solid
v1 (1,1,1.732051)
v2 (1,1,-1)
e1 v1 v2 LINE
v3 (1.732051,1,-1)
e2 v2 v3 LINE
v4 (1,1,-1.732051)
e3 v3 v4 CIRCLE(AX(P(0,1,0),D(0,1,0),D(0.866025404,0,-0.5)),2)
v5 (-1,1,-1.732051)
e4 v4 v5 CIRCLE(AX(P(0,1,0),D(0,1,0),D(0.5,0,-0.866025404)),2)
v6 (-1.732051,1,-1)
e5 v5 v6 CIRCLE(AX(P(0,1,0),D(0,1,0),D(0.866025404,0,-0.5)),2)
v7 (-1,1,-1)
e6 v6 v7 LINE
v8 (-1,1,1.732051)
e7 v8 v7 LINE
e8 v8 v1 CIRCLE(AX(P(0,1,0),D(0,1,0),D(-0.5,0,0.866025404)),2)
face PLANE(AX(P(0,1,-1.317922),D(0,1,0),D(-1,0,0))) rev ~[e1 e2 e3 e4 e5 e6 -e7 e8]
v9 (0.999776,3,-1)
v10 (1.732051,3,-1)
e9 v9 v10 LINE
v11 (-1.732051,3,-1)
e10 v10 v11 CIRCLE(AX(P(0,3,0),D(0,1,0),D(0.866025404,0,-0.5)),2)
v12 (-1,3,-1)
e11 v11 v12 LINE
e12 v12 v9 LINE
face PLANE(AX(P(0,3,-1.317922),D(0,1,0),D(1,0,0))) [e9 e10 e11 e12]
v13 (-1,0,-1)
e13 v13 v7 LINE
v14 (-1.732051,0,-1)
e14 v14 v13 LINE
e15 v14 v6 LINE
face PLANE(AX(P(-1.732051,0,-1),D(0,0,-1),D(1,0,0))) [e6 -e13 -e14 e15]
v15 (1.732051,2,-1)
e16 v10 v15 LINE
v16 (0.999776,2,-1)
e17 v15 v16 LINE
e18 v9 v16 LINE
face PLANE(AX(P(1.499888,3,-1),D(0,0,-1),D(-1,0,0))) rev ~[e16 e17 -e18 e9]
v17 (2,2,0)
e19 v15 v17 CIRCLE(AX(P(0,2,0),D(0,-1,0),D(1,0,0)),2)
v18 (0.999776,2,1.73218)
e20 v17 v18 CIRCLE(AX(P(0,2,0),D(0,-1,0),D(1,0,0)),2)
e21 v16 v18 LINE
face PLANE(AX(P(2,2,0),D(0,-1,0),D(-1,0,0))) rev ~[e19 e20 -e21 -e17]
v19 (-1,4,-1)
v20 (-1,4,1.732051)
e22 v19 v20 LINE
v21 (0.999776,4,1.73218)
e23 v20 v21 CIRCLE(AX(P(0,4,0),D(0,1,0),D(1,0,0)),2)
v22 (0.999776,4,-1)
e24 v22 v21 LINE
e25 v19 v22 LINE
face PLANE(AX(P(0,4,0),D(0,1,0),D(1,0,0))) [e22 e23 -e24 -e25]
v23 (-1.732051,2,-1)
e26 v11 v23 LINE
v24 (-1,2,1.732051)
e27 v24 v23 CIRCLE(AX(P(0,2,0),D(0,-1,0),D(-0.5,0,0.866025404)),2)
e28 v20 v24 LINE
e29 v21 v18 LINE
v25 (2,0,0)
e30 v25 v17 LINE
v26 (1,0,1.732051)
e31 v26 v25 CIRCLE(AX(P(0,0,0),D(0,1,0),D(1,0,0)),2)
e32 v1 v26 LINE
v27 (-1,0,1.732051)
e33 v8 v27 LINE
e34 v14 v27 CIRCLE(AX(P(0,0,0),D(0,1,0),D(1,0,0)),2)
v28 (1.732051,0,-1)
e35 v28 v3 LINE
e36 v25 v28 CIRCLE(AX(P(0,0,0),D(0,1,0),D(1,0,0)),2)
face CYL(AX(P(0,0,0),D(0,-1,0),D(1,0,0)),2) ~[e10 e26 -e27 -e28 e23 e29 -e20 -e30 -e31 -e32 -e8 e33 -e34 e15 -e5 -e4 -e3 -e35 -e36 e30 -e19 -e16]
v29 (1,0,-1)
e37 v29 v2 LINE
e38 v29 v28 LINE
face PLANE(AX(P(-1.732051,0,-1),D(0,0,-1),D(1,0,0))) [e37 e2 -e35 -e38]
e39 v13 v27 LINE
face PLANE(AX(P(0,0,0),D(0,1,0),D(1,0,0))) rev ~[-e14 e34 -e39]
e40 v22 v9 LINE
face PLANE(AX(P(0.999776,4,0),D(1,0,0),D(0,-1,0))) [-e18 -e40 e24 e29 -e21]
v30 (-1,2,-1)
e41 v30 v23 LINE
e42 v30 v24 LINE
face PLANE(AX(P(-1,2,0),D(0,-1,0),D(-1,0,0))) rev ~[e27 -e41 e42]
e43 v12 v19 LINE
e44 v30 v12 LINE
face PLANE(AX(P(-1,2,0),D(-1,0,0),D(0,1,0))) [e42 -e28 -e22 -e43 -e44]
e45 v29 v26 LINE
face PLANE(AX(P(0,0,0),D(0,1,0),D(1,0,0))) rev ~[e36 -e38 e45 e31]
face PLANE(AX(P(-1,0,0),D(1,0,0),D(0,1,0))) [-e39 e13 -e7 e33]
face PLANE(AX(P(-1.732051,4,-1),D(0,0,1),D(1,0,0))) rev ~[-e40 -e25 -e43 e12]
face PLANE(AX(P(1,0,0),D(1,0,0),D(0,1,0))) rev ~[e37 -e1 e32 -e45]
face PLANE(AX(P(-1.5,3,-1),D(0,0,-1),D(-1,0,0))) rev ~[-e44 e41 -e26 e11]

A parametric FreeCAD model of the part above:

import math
import FreeCAD as App
import Part
import Sketcher
from FreeCAD import Vector

doc = App.newDocument("Part")
body = doc.addObject("PartDesign::Body", "Body")

# Sketch on XZ plane
sketch1 = doc.addObject("Sketcher::SketchObject", "Sketch")
body.addObject(sketch1)
sketch1.AttachmentSupport = (doc.XZ_Plane, [""])
sketch1.MapMode = "FlatFace"
sketch1.addGeometry(Part.Circle(Vector(0, 0, 0), Vector(0, 0, 1), 2), False)
sketch1.addConstraint([
    Sketcher.Constraint("Coincident", 0, 3, -1, 1),
    Sketcher.Constraint("Diameter", 0, 4.0),
])
pad1 = doc.addObject("PartDesign::Pad", "Pad")
body.addObject(pad1)
pad1.Profile = sketch1
pad1.Length = 4
pad1.Reversed = True

# Sketch on XY plane
sketch2 = doc.addObject("Sketcher::SketchObject", "Sketch001")
body.addObject(sketch2)
sketch2.AttachmentSupport = (doc.XY_Plane, [""])
sketch2.MapMode = "FlatFace"
sketch2.addGeometry([
    Part.LineSegment(Vector(-1, 1, 0), Vector(-1, 0, 0)),
    Part.LineSegment(Vector(-1, 0, 0), Vector(1, 0, 0)),
    Part.LineSegment(Vector(1, 0, 0), Vector(1, 1, 0)),
    Part.LineSegment(Vector(1, 1, 0), Vector(-1, 1, 0)),
], False)
sketch2.addConstraint([
    Sketcher.Constraint("Coincident", 0, 2, 1, 1),
    Sketcher.Constraint("Coincident", 1, 2, 2, 1),
    Sketcher.Constraint("Coincident", 2, 2, 3, 1),
    Sketcher.Constraint("Coincident", 3, 2, 0, 1),
    Sketcher.Constraint("Vertical", 0),
    Sketcher.Constraint("Horizontal", 1),
    Sketcher.Constraint("Vertical", 2),
    Sketcher.Constraint("Horizontal", 3),
    Sketcher.Constraint("Symmetric", 0, 2, 1, 2, -1, 1),
    Sketcher.Constraint("DistanceX", 1, 1, 1, 2, 2.0),
    Sketcher.Constraint("DistanceY", 0, 2, 0, 1, 1.0),
])
pocket1 = doc.addObject("PartDesign::Pocket", "Pocket")
body.addObject(pocket1)
pocket1.Profile = sketch2
pocket1.Length = 4
pocket1.Midplane = True

# Sketch on XY plane
sketch3 = doc.addObject("Sketcher::SketchObject", "Sketch002")
body.addObject(sketch3)
sketch3.AttachmentSupport = (doc.XY_Plane, [""])
sketch3.MapMode = "FlatFace"
sketch3.addGeometry([
    Part.LineSegment(Vector(2, 2, 0), Vector(2, 4, 0)),  # 0
    Part.LineSegment(Vector(2, 4, 0), Vector(1, 4, 0)),  # 1
    Part.LineSegment(Vector(1, 4, 0), Vector(1, 2, 0)),  # 2
    Part.LineSegment(Vector(1, 2, 0), Vector(2, 2, 0)),  # 3
    Part.LineSegment(Vector(-2, 2, 0), Vector(-1, 2, 0)),  # 4
    Part.LineSegment(Vector(-1, 2, 0), Vector(-1, 4, 0)),  # 5
    Part.LineSegment(Vector(-1, 4, 0), Vector(-2, 4, 0)),  # 6
    Part.LineSegment(Vector(-2, 4, 0), Vector(-2, 2, 0)),  # 7
], False)
sketch3.addConstraint([
    Sketcher.Constraint("Coincident", 0, 2, 1, 1),
    Sketcher.Constraint("Coincident", 1, 2, 2, 1),
    Sketcher.Constraint("Coincident", 2, 2, 3, 1),
    Sketcher.Constraint("Coincident", 3, 2, 0, 1),
    Sketcher.Constraint("Coincident", 4, 2, 5, 1),
    Sketcher.Constraint("Coincident", 5, 2, 6, 1),
    Sketcher.Constraint("Coincident", 6, 2, 7, 1),
    Sketcher.Constraint("Coincident", 7, 2, 4, 1),
    Sketcher.Constraint("Vertical", 0),
    Sketcher.Constraint("Horizontal", 1),
    Sketcher.Constraint("Vertical", 2),
    Sketcher.Constraint("Horizontal", 3),
    Sketcher.Constraint("Horizontal", 4),
    Sketcher.Constraint("Vertical", 5),
    Sketcher.Constraint("Horizontal", 6),
    Sketcher.Constraint("Vertical", 7),
    Sketcher.Constraint("Symmetric", 0, 2, 6, 2, -2),
    Sketcher.Constraint("Horizontal", 3, 2, 4, 2),
    Sketcher.Constraint("DistanceX", 4, 1, 4, 2, 1.0),
    Sketcher.Constraint("DistanceY", 0, 1, 0, 2, 2.0),
    Sketcher.Constraint("DistanceX", -1, 1, 0, 2, 2.0),
    Sketcher.Constraint("DistanceY", -1, 1, 0, 2, 4.0),
    Sketcher.Constraint("DistanceX", 1, 2, 1, 1, 1.000224),
])
pocket2 = doc.addObject("PartDesign::Pocket", "Pocket001")
body.addObject(pocket2)
pocket2.Profile = sketch3
pocket2.Type = "TwoLengths"
pocket2.Length = 4
pocket2.Length2 = 1
pocket2.Reversed = True

# Sketch on XZ plane
sketch4 = doc.addObject("Sketcher::SketchObject", "Sketch003")
body.addObject(sketch4)
sketch4.AttachmentSupport = (doc.XZ_Plane, [""])
sketch4.MapMode = "FlatFace"
sketch4.AttachmentOffset = App.Placement(Vector(0, 0, -4), App.Rotation())
sketch4.addGeometry([
    Part.LineSegment(Vector(-1.7, -1, 0), Vector(1.7, -1, 0)),
    Part.ArcOfCircle(Part.Circle(Vector(0, 0, 0), Vector(0, 0, 1), 2), math.radians(-150), math.radians(-30)),
], False)
sketch4.addConstraint([
    Sketcher.Constraint("Coincident", 0, 1, 1, 1),
    Sketcher.Constraint("Coincident", 1, 2, 0, 2),
    Sketcher.Constraint("Horizontal", 0),
    Sketcher.Constraint("Coincident", 1, 3, -1, 1),
    Sketcher.Constraint("Radius", 1, 2.0),
    Sketcher.Constraint("DistanceY", 0, 1, -1, 1, 1.0),
])
pocket3 = doc.addObject("PartDesign::Pocket", "Pocket002")
body.addObject(pocket3)
pocket3.Profile = sketch4
pocket3.Length = 1
pocket3.Reversed = True

# Sketch on XZ plane
sketch5 = doc.addObject("Sketcher::SketchObject", "Sketch004")
body.addObject(sketch5)
sketch5.AttachmentSupport = (doc.XZ_Plane, [""])
sketch5.MapMode = "FlatFace"
sketch5.addGeometry([
    Part.LineSegment(Vector(1.7, -1, 0), Vector(-1.7, -1, 0)),
    Part.ArcOfCircle(Part.Circle(Vector(0, 0, 0), Vector(0, 0, 1), 2), math.radians(-150), math.radians(-30)),
], False)
sketch5.addConstraint([
    Sketcher.Constraint("Coincident", 0, 1, 1, 2),
    Sketcher.Constraint("Coincident", 1, 1, 0, 2),
    Sketcher.Constraint("Horizontal", 0),
    Sketcher.Constraint("Coincident", 1, 3, -1, 1),
    Sketcher.Constraint("Radius", 1, 2.0),
    Sketcher.Constraint("DistanceY", 0, 1, -1, 1, 1.0),
])
pocket4 = doc.addObject("PartDesign::Pocket", "Pocket003")
body.addObject(pocket4)
pocket4.Profile = sketch5
pocket4.Length = 1

doc.recompute()
